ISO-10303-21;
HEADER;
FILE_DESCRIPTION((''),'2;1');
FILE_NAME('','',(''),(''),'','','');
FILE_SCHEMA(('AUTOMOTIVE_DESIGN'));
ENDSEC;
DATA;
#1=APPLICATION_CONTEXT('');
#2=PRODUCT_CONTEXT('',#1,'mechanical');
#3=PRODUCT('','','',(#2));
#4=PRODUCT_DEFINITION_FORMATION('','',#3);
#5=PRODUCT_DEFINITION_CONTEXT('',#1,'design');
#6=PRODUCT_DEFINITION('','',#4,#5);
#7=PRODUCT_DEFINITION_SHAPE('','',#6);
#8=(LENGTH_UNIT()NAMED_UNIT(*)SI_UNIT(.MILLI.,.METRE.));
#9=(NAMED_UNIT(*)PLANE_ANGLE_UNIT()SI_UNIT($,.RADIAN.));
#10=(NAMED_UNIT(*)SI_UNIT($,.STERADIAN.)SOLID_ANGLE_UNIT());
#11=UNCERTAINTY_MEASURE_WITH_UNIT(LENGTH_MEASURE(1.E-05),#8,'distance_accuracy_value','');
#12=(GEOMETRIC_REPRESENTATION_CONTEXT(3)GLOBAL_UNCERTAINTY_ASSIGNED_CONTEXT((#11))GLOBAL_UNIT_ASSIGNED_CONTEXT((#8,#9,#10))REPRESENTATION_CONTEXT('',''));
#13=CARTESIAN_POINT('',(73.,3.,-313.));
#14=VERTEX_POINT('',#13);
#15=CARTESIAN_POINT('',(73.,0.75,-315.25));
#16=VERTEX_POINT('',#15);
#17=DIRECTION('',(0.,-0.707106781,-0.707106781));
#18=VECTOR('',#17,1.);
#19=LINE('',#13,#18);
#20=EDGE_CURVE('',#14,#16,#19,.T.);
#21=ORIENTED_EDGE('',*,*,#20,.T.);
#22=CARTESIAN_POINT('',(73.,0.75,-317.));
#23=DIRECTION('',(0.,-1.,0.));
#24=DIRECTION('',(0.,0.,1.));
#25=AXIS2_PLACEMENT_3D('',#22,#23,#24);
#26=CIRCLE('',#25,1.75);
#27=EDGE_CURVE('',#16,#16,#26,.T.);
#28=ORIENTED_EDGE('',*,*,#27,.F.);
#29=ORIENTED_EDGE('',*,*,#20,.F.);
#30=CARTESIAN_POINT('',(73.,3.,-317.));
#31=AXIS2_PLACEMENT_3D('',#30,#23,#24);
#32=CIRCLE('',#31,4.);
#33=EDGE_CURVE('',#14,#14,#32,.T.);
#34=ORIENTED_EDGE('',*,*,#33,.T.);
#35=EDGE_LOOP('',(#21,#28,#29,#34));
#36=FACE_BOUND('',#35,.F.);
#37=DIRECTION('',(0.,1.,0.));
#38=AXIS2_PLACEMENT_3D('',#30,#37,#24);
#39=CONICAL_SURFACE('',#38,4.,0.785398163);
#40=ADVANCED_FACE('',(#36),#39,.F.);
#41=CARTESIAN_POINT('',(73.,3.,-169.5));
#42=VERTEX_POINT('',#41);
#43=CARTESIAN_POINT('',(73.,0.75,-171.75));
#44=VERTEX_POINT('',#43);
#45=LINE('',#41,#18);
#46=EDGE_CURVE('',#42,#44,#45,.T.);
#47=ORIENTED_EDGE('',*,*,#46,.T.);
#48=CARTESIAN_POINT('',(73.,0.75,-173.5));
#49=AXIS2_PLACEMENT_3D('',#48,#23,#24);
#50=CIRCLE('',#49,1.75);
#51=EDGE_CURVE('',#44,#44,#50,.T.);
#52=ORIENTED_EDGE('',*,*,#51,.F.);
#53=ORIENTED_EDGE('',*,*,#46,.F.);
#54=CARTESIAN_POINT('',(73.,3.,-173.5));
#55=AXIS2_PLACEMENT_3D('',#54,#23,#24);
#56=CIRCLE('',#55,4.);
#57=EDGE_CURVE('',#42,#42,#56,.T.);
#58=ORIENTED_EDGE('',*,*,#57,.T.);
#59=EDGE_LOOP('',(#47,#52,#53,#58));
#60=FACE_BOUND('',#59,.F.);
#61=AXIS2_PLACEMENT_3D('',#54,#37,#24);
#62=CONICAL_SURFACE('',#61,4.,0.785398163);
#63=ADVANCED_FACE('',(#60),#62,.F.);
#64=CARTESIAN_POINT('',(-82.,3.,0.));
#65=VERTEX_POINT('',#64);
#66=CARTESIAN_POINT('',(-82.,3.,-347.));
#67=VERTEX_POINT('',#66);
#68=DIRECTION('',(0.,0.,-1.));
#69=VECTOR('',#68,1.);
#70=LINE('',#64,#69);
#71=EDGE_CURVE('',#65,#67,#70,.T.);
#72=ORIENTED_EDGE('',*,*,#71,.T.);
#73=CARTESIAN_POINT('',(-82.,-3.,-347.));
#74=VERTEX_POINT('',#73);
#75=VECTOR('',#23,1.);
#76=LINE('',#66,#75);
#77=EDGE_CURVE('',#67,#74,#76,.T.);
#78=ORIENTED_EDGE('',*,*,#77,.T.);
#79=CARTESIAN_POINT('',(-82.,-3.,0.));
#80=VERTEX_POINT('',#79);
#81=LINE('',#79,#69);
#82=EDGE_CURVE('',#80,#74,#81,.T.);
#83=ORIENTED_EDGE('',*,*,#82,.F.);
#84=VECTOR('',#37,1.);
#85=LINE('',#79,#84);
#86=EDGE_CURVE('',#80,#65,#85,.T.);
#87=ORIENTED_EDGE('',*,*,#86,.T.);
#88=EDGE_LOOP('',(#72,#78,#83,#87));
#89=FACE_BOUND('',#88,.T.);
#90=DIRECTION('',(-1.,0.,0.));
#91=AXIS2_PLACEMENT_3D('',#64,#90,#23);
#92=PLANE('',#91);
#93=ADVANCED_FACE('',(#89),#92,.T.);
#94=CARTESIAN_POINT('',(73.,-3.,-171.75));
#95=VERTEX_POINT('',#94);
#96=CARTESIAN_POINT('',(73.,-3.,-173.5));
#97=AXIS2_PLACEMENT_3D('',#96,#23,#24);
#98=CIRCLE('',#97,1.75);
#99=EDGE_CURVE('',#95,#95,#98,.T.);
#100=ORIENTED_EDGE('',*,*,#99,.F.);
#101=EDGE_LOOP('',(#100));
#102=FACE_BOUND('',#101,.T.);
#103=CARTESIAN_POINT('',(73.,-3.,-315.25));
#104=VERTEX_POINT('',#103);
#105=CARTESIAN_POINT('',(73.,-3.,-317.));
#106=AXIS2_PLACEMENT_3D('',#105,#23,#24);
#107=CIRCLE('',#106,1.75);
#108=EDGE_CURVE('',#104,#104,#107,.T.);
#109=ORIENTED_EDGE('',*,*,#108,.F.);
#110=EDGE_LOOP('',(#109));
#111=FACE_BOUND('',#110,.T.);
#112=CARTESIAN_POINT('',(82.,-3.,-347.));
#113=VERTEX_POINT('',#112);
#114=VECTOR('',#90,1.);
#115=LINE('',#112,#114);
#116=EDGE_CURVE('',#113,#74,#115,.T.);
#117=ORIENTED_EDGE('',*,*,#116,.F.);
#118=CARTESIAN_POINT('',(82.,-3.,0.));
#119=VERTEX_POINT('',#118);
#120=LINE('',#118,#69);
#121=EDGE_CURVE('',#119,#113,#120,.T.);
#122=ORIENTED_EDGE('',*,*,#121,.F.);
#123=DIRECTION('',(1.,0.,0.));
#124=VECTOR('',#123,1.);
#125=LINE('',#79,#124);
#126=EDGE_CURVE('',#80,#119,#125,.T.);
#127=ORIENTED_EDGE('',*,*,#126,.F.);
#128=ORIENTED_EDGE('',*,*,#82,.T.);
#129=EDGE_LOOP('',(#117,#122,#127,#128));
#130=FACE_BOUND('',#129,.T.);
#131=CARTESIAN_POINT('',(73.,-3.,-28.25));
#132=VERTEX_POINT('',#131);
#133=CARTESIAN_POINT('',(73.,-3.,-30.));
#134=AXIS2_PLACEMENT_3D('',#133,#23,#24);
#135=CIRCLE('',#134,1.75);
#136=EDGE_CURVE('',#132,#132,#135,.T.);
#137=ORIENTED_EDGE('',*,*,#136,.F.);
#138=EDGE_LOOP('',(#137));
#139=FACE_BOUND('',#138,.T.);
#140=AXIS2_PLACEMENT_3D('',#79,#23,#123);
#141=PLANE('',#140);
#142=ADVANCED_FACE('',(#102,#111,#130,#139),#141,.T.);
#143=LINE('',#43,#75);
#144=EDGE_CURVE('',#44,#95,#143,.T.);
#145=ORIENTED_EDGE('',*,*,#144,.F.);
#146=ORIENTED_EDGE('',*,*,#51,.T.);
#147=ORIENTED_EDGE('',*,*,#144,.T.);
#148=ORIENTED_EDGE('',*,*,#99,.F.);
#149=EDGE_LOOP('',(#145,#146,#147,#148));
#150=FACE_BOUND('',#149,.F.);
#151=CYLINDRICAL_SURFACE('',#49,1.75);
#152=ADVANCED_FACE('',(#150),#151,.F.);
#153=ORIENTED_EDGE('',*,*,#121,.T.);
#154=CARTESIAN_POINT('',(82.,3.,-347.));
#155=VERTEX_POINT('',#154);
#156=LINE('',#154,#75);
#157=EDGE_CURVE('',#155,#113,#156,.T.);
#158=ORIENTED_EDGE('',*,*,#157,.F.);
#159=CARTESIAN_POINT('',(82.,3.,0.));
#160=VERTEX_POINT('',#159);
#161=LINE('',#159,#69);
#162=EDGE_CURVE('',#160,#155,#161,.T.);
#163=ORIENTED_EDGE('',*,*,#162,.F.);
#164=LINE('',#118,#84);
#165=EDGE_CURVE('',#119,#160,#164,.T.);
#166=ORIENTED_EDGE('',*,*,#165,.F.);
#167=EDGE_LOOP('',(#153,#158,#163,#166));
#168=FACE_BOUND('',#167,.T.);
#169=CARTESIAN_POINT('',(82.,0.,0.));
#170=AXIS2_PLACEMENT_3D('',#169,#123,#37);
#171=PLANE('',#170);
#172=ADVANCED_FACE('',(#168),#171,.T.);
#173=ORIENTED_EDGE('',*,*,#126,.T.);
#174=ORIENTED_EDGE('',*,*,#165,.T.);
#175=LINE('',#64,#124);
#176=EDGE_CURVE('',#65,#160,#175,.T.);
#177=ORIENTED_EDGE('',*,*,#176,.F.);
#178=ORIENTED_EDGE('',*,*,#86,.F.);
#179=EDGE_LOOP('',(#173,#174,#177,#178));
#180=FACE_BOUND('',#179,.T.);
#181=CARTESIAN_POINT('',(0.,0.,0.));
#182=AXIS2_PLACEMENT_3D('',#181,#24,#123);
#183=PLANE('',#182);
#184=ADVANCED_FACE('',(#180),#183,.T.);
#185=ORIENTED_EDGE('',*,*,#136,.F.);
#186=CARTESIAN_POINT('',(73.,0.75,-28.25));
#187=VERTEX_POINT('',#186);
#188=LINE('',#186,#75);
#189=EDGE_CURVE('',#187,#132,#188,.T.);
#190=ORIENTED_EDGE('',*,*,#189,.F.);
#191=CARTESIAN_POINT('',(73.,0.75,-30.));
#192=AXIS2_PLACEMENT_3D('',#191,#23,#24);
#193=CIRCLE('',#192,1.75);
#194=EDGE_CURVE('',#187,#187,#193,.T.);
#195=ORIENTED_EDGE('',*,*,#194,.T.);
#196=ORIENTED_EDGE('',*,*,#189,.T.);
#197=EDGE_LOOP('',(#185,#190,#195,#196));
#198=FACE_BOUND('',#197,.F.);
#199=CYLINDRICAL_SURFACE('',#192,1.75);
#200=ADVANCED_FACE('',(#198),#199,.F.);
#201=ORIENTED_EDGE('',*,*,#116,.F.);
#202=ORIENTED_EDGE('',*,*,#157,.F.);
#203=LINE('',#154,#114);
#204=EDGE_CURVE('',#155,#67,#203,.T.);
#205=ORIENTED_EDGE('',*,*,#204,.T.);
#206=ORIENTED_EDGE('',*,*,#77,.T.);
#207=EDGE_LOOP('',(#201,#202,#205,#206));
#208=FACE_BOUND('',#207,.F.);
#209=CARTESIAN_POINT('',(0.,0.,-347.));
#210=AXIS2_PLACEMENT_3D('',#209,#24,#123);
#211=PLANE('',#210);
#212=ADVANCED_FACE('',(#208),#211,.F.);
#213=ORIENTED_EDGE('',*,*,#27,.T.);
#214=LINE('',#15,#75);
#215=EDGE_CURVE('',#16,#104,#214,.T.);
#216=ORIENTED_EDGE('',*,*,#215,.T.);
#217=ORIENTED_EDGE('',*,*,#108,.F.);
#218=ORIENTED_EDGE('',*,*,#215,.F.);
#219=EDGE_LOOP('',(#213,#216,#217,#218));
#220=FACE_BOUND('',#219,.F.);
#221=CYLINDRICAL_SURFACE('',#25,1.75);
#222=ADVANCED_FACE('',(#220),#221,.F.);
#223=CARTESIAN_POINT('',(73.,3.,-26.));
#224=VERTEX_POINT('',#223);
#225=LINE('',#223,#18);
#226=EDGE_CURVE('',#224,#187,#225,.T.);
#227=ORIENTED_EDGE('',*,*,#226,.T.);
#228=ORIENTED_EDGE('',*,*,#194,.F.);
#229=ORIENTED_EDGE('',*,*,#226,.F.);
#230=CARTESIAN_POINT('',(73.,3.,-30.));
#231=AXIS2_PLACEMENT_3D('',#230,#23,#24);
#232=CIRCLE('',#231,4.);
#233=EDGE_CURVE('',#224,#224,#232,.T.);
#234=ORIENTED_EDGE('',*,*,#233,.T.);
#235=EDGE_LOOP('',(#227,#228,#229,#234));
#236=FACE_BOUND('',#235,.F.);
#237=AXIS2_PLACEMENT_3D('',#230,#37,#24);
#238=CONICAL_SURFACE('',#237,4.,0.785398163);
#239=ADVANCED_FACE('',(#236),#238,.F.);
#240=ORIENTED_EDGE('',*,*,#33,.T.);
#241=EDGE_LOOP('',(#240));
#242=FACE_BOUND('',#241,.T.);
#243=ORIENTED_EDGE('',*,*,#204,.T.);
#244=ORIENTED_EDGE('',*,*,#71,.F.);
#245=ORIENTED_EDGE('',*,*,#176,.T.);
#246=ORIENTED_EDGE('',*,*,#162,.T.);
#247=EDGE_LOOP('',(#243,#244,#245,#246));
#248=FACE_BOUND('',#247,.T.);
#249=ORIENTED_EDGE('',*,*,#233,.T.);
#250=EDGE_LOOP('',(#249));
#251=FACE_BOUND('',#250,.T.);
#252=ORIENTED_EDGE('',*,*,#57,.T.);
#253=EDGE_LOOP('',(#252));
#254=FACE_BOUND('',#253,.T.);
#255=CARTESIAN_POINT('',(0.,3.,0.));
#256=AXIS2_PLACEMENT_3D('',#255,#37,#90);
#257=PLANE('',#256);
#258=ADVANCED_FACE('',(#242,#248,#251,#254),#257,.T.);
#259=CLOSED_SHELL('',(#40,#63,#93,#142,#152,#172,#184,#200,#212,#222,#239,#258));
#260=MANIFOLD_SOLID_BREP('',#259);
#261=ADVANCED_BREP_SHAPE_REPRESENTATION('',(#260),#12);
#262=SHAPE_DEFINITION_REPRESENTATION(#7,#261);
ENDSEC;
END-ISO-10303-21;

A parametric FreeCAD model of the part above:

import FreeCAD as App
import Part
import Sketcher

doc = App.newDocument("Part")
body = doc.addObject("PartDesign::Body", "Body")

sketch1 = body.newObject("Sketcher::SketchObject", "Sketch")
sketch1.AttachmentSupport = (doc.getObject("XY_Plane"), [""])
sketch1.MapMode = "FlatFace"
sketch1.addGeometry([
    Part.LineSegment(App.Vector(-82, 3, 0), App.Vector(-82, -3, 0)),
    Part.LineSegment(App.Vector(-82, -3, 0), App.Vector(82, -3, 0)),
    Part.LineSegment(App.Vector(82, -3, 0), App.Vector(82, 3, 0)),
    Part.LineSegment(App.Vector(82, 3, 0), App.Vector(-82, 3, 0)),
], False)
sketch1.addConstraint([
    Sketcher.Constraint("Coincident", 0, 2, 1, 1),
    Sketcher.Constraint("Coincident", 1, 2, 2, 1),
    Sketcher.Constraint("Coincident", 2, 2, 3, 1),
    Sketcher.Constraint("Coincident", 3, 2, 0, 1),
    Sketcher.Constraint("Vertical", 0),
    Sketcher.Constraint("Horizontal", 1),
    Sketcher.Constraint("Vertical", 2),
    Sketcher.Constraint("Horizontal", 3),
    Sketcher.Constraint("Symmetric", 0, 2, 2, 2, -1, 1),
    Sketcher.Constraint("DistanceX", 1, 1, 1, 2, 164.0),
    Sketcher.Constraint("DistanceY", 0, 2, 0, 1, 6.0),
])
pad1 = body.newObject("PartDesign::Pad", "Pad")
pad1.Profile = sketch1
pad1.Length = 347
pad1.Reversed = True

sketch2 = body.newObject("Sketcher::SketchObject", "Sketch001")
sketch2.AttachmentSupport = (doc.getObject("XZ_Plane"), [""])
sketch2.MapMode = "FlatFace"
sketch2.AttachmentOffset = App.Placement(App.Vector(0, 0, -3), App.Rotation())
sketch2.addGeometry([
    Part.Circle(App.Vector(73, -30, 0), App.Vector(0, 0, 1), 1.8),
    Part.Circle(App.Vector(73, -173.5, 0), App.Vector(0, 0, 1), 1.8),
    Part.Circle(App.Vector(73, -317, 0), App.Vector(0, 0, 1), 1.8),
], False)
sketch2.addConstraint([
    Sketcher.Constraint("Equal", 0, 1),
    Sketcher.Constraint("Equal", 1, 2),
    Sketcher.Constraint("Vertical", 0, 3, 1, 3),
    Sketcher.Constraint("Vertical", 1, 3, 2, 3),
    Sketcher.Constraint("Diameter", 0, 3.5),
    Sketcher.Constraint("DistanceX", -1, 1, 0, 3, 73.0),
    Sketcher.Constraint("DistanceY", 0, 3, -1, 1, 30.0),
    Sketcher.Constraint("DistanceY", 2, 3, -1, 1, 317.0),
    Sketcher.Constraint("DistanceY", 1, 3, -1, 1, 173.5),
])
doc.recompute()
hole = body.newObject("PartDesign::Hole", "Hole")
hole.Profile = sketch2
hole.ThreadType = "None"
hole.Diameter = 3.5
hole.DepthType = "Dimension"
hole.Depth = 17
hole.DrillPoint = "Angled"
hole.DrillPointAngle = 118
hole.HoleCutType = "Countersink"
hole.HoleCutDiameter = 8
hole.HoleCutCountersinkAngle = 90
hole.Reversed = True

doc.recompute()
